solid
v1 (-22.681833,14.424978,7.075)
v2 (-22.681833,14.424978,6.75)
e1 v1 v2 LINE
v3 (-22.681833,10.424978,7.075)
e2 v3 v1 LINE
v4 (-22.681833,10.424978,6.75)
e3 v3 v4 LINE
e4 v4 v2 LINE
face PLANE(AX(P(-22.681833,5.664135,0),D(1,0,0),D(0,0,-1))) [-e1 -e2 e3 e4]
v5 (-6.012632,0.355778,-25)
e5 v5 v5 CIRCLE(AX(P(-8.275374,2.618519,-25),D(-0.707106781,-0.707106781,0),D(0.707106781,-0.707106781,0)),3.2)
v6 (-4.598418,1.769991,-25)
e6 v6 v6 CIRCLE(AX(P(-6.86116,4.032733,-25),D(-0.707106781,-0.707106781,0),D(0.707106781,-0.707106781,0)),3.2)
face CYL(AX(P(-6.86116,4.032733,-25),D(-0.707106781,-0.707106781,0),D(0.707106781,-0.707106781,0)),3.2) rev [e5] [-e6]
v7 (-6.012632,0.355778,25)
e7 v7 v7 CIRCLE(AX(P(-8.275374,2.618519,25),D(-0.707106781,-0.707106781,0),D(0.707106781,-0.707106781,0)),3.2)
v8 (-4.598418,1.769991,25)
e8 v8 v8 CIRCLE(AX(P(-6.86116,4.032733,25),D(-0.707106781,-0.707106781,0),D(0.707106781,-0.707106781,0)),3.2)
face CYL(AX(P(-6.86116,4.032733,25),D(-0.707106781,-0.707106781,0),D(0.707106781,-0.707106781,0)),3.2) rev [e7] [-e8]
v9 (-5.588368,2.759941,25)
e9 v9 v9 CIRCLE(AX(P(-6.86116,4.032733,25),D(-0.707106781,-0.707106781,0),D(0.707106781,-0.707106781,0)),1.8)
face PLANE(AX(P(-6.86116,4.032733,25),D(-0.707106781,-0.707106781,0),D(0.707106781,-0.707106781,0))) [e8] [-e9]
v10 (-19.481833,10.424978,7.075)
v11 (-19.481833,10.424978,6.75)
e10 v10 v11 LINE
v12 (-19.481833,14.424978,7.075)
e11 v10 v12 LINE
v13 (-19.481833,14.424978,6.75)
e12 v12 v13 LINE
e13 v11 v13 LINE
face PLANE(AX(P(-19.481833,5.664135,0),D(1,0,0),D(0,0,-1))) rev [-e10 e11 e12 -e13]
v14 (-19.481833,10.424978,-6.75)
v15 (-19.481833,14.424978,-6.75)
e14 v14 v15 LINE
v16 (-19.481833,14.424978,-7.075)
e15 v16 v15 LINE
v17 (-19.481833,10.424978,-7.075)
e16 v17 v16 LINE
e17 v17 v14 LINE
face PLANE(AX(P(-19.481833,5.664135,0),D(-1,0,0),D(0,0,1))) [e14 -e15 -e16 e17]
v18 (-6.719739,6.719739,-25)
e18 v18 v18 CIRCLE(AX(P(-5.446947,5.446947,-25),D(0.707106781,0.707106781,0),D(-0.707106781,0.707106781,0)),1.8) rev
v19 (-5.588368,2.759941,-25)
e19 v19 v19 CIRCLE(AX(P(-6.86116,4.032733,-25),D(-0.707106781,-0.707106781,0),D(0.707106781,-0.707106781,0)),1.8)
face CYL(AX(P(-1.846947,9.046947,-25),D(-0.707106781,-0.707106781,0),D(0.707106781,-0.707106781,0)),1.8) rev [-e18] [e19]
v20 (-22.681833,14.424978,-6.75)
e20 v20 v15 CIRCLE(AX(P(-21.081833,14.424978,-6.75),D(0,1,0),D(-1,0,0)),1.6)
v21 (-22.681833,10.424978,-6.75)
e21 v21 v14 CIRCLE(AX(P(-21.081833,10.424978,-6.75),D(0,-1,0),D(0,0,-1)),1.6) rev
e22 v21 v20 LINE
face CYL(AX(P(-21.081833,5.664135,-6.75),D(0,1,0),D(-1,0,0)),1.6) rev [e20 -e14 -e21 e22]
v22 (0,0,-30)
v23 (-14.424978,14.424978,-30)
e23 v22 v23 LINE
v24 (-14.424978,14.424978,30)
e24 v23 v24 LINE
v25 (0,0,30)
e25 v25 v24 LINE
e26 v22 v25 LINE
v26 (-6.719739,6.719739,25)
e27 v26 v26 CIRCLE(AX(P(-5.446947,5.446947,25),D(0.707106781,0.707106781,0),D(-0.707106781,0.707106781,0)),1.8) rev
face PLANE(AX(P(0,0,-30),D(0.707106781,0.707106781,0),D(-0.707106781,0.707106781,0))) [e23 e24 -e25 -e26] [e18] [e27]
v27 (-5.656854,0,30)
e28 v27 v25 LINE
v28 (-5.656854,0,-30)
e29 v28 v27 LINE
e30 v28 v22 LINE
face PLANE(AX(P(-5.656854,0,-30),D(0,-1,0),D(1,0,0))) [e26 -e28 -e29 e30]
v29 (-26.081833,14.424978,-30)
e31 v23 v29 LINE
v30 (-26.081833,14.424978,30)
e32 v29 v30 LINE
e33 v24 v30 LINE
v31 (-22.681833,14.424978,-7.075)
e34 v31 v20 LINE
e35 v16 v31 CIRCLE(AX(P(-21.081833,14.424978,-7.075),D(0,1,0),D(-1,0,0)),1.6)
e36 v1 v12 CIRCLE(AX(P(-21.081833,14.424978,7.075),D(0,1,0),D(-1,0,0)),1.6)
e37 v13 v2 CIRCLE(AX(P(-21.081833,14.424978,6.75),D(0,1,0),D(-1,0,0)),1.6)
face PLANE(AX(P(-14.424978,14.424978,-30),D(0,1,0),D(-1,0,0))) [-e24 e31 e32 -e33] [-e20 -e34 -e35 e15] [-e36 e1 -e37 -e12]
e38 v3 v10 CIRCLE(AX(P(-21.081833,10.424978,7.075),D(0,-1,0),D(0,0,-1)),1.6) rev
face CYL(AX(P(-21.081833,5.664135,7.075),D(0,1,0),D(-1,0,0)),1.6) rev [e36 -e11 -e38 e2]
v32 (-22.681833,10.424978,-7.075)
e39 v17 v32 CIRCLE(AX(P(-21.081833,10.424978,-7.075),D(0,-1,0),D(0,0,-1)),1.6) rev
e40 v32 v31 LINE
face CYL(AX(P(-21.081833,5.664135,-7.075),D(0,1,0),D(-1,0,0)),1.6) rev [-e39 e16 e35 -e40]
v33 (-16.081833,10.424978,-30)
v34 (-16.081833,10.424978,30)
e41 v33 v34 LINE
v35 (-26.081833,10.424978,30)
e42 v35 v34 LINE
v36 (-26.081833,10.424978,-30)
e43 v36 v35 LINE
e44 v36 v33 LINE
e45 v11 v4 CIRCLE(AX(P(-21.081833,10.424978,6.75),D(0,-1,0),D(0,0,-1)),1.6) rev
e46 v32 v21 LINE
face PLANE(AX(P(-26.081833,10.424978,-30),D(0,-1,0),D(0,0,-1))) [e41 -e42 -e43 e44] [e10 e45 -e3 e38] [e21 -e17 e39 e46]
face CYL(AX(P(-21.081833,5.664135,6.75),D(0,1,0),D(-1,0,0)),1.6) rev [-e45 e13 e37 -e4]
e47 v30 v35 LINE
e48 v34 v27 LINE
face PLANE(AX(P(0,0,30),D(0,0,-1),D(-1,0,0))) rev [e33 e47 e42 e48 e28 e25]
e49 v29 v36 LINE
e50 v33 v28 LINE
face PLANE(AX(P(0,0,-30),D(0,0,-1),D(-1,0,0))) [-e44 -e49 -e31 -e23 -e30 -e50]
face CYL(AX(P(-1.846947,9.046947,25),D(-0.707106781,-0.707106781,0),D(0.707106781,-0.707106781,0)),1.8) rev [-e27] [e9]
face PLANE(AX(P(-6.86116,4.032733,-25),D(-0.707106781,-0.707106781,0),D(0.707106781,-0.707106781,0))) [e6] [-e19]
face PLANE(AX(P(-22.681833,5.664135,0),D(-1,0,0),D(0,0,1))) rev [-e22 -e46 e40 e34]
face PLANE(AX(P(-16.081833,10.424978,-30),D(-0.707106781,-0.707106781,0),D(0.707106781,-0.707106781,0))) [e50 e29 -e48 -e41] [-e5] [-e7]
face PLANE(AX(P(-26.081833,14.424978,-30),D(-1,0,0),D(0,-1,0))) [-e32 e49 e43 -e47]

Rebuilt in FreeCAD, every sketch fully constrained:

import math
import FreeCAD as App
import Part
import Sketcher
from FreeCAD import Vector
Q = App.Units.Quantity

doc = App.newDocument("Part")
params = doc.addObject("Spreadsheet::Sheet", "Params")
for row, (alias, value) in enumerate([
    ("sketch1_width", "10 mm"),
    ("sketch1_height", "4 mm"),
    ("sketch1_length", "20.4 mm"),
    ("pad1_length", "30 mm"),
    ("pad1_length2", "30 mm"),
    ("sketch2_diameter", "3.6 mm"),
    ("pocket1_length", "4 mm"),
    ("sketch3_diameter", "6.4 mm"),
    ("sketch3_diameter2", "3.6 mm"),
    ("pocket2_length", "2 mm"),
    ("sketch4_radius", "1.6 mm"),
    ("pocket3_length", "4 mm"),
], start=1):
    params.set(f"A{row}", alias)
    params.set(f"B{row}", "=" + value)
    params.setAlias(f"B{row}", alias)

body = doc.addObject("PartDesign::Body", "Body")

sketch1 = doc.addObject("Sketcher::SketchObject", "Sketch")
body.addObject(sketch1)
sketch1.AttachmentSupport = (doc.XY_Plane, [""])
sketch1.MapMode = "FlatFace"
sketch1.addGeometry([
    Part.LineSegment(Vector(0, 0, 0), Vector(-14.424978, 14.424978, 0)),
    Part.LineSegment(Vector(-14.424978, 14.424978, 0), Vector(-26.081833, 14.424978, 0)),
    Part.LineSegment(Vector(-26.081833, 14.424978, 0), Vector(-26.081833, 10.424978, 0)),
    Part.LineSegment(Vector(-26.081833, 10.424978, 0), Vector(-16.081833, 10.424978, 0)),
    Part.LineSegment(Vector(-16.081833, 10.424978, 0), Vector(-5.656854, 0, 0)),
    Part.LineSegment(Vector(-5.656854, 0, 0), Vector(0, 0, 0)),
], False)
sketch1.addConstraint([
    Sketcher.Constraint("Coincident", 0, 2, 1, 1),
    Sketcher.Constraint("Coincident", 1, 2, 2, 1),
    Sketcher.Constraint("Coincident", 2, 2, 3, 1),
    Sketcher.Constraint("Coincident", 3, 2, 4, 1),
    Sketcher.Constraint("Coincident", 4, 2, 5, 1),
    Sketcher.Constraint("Coincident", 5, 2, 0, 1),
    Sketcher.Constraint("Horizontal", 1),
    Sketcher.Constraint("Vertical", 2),
    Sketcher.Constraint("Horizontal", 3),
    Sketcher.Constraint("Horizontal", 5),
    Sketcher.Constraint("Coincident", 5, 2, -1, 1),
    Sketcher.Constraint("Parallel", 0, 4),
    Sketcher.Constraint("DistanceX", 3, 1, 3, 2, Q("10 mm")),
    Sketcher.Constraint("DistanceY", 2, 2, 2, 1, Q("4 mm")),
    Sketcher.Constraint("Angle", 0, Q("135 deg")),
    Sketcher.Constraint("Distance", 0, Q("20.4 mm")),
    Sketcher.Constraint("DistanceX", 1, 2, 1, 1, Q("11.656854 mm")),
])
sketch1.setExpression("Constraints[12]", "Params.sketch1_width")
sketch1.setExpression("Constraints[13]", "Params.sketch1_height")
sketch1.setExpression("Constraints[15]", "Params.sketch1_length")
pad1 = doc.addObject("PartDesign::Pad", "Pad")
body.addObject(pad1)
pad1.Profile = sketch1
pad1.Type = "TwoLengths"
pad1.setExpression("Length", "Params.pad1_length")
pad1.setExpression("Length2", "Params.pad1_length2")

sketch2 = doc.addObject("Sketcher::SketchObject", "Sketch001")
body.addObject(sketch2)
sketch2.Placement = App.Placement(Vector(-2.828427, -2.828427, 0), App.Rotation(Vector(-0.707106781, 0.707106781, 0), Vector(0, 0, -0.999999999), Vector(-0.707106781, -0.707106781, 0), "ZXY"))
sketch2.addGeometry([
    Part.Circle(Vector(7.703146, -25, 0), Vector(0, 0, 1), 1.8),
    Part.Circle(Vector(7.703146, 25, 0), Vector(0, 0, 1), 1.8),
], False)
sketch2.addConstraint([
    Sketcher.Constraint("Equal", 0, 1),
    Sketcher.Constraint("Symmetric", 0, 3, 1, 3, -1),
    Sketcher.Constraint("Diameter", 0, Q("3.6 mm")),
    Sketcher.Constraint("DistanceY", 0, 3, -1, 1, Q("25 mm")),
    Sketcher.Constraint("DistanceX", -1, 1, 0, 3, Q("7.703146 mm")),
])
sketch2.setExpression("Constraints[2]", "Params.sketch2_diameter")
pocket1 = doc.addObject("PartDesign::Pocket", "Pocket")
body.addObject(pocket1)
pocket1.Profile = sketch2
pocket1.setExpression("Length", "Params.pocket1_length")

sketch3 = doc.addObject("Sketcher::SketchObject", "Sketch002")
body.addObject(sketch3)
sketch3.Placement = App.Placement(Vector(-2.828427, -2.828427, 0), App.Rotation(Vector(-0.707106781, 0.707106781, 0), Vector(0, 0, -0.999999999), Vector(-0.707106781, -0.707106781, 0), "ZXY"))
sketch3.addGeometry([
    Part.Circle(Vector(7.703146, 25, 0), Vector(0, 0, 1), 3.2),
    Part.Circle(Vector(7.703146, 25, 0), Vector(0, 0, 1), 1.8),
    Part.Circle(Vector(7.703146, -25, 0), Vector(0, 0, 1), 3.2),
    Part.Circle(Vector(7.703146, -25, 0), Vector(0, 0, 1), 1.8),
], False)
sketch3.addConstraint([
    Sketcher.Constraint("Coincident", 1, 3, 0, 3),
    Sketcher.Constraint("Coincident", 3, 3, 2, 3),
    Sketcher.Constraint("Equal", 0, 2),
    Sketcher.Constraint("Equal", 1, 3),
    Sketcher.Constraint("Symmetric", 0, 3, 2, 3, -1),
    Sketcher.Constraint("Diameter", 0, Q("6.4 mm")),
    Sketcher.Constraint("Diameter", 1, Q("3.6 mm")),
    Sketcher.Constraint("DistanceY", -1, 1, 0, 3, Q("25 mm")),
    Sketcher.Constraint("DistanceX", -1, 1, 0, 3, Q("7.703146 mm")),
])
sketch3.setExpression("Constraints[5]", "Params.sketch3_diameter")
sketch3.setExpression("Constraints[6]", "Params.sketch3_diameter2")
pocket2 = doc.addObject("PartDesign::Pocket", "Pocket001")
body.addObject(pocket2)
pocket2.Profile = sketch3
pocket2.setExpression("Length", "Params.pocket2_length")

sketch4 = doc.addObject("Sketcher::SketchObject", "Sketch003")
body.addObject(sketch4)
sketch4.AttachmentSupport = (doc.XZ_Plane, [""])
sketch4.MapMode = "FlatFace"
sketch4.AttachmentOffset = App.Placement(Vector(0, 0, -14.424978), App.Rotation())
sketch4.addGeometry([
    Part.LineSegment(Vector(-19.481833, -6.75, 0), Vector(-19.481833, -7.075, 0)),
    Part.ArcOfCircle(Part.Circle(Vector(-21.081833, -7.075, 0), Vector(0, 0, 1), 1.6), math.radians(180), math.radians(360)),
    Part.LineSegment(Vector(-22.681833, -7.075, 0), Vector(-22.681833, -6.75, 0)),
    Part.ArcOfCircle(Part.Circle(Vector(-21.081833, -6.75, 0), Vector(0, 0, 1), 1.6), math.radians(0), math.radians(180)),
    Part.LineSegment(Vector(-19.481833, 7.075, 0), Vector(-19.481833, 6.75, 0)),
    Part.ArcOfCircle(Part.Circle(Vector(-21.081833, 6.75, 0), Vector(0, 0, 1), 1.6), math.radians(180), math.radians(360)),
    Part.LineSegment(Vector(-22.681833, 6.75, 0), Vector(-22.681833, 7.075, 0)),
    Part.ArcOfCircle(Part.Circle(Vector(-21.081833, 7.075, 0), Vector(0, 0, 1), 1.6), math.radians(0), math.radians(180)),
], False)
sketch4.addConstraint([
    Sketcher.Constraint("Tangent", 0, 2, 1, 2),
    Sketcher.Constraint("Tangent", 1, 1, 2, 1),
    Sketcher.Constraint("Tangent", 2, 2, 3, 2),
    Sketcher.Constraint("Tangent", 3, 1, 0, 1),
    Sketcher.Constraint("Tangent", 4, 2, 5, 2),
    Sketcher.Constraint("Tangent", 5, 1, 6, 1),
    Sketcher.Constraint("Tangent", 6, 2, 7, 2),
    Sketcher.Constraint("Tangent", 7, 1, 4, 1),
    Sketcher.Constraint("Vertical", 0),
    Sketcher.Constraint("Vertical", 2),
    Sketcher.Constraint("Vertical", 4),
    Sketcher.Constraint("Vertical", 6),
    Sketcher.Constraint("Equal", 3, 5),
    Sketcher.Constraint("Symmetric", 3, 3, 5, 3, -1),
    Sketcher.Constraint("Equal", 2, 4),
    Sketcher.Constraint("Radius", 1, Q("1.6 mm")),
    Sketcher.Constraint("DistanceY", 3, 3, 5, 3, Q("13.5 mm")),
    Sketcher.Constraint("DistanceY", 0, 2, 0, 1, Q("0.325 mm")),
    Sketcher.Constraint("DistanceX", 1, 3, -1, 1, Q("21.081833 mm")),
])
sketch4.setExpression("Constraints[15]", "Params.sketch4_radius")
pocket3 = doc.addObject("PartDesign::Pocket", "Pocket002")
body.addObject(pocket3)
pocket3.Profile = sketch4
pocket3.setExpression("Length", "Params.pocket3_length")
pocket3.Reversed = True

doc.recompute()
